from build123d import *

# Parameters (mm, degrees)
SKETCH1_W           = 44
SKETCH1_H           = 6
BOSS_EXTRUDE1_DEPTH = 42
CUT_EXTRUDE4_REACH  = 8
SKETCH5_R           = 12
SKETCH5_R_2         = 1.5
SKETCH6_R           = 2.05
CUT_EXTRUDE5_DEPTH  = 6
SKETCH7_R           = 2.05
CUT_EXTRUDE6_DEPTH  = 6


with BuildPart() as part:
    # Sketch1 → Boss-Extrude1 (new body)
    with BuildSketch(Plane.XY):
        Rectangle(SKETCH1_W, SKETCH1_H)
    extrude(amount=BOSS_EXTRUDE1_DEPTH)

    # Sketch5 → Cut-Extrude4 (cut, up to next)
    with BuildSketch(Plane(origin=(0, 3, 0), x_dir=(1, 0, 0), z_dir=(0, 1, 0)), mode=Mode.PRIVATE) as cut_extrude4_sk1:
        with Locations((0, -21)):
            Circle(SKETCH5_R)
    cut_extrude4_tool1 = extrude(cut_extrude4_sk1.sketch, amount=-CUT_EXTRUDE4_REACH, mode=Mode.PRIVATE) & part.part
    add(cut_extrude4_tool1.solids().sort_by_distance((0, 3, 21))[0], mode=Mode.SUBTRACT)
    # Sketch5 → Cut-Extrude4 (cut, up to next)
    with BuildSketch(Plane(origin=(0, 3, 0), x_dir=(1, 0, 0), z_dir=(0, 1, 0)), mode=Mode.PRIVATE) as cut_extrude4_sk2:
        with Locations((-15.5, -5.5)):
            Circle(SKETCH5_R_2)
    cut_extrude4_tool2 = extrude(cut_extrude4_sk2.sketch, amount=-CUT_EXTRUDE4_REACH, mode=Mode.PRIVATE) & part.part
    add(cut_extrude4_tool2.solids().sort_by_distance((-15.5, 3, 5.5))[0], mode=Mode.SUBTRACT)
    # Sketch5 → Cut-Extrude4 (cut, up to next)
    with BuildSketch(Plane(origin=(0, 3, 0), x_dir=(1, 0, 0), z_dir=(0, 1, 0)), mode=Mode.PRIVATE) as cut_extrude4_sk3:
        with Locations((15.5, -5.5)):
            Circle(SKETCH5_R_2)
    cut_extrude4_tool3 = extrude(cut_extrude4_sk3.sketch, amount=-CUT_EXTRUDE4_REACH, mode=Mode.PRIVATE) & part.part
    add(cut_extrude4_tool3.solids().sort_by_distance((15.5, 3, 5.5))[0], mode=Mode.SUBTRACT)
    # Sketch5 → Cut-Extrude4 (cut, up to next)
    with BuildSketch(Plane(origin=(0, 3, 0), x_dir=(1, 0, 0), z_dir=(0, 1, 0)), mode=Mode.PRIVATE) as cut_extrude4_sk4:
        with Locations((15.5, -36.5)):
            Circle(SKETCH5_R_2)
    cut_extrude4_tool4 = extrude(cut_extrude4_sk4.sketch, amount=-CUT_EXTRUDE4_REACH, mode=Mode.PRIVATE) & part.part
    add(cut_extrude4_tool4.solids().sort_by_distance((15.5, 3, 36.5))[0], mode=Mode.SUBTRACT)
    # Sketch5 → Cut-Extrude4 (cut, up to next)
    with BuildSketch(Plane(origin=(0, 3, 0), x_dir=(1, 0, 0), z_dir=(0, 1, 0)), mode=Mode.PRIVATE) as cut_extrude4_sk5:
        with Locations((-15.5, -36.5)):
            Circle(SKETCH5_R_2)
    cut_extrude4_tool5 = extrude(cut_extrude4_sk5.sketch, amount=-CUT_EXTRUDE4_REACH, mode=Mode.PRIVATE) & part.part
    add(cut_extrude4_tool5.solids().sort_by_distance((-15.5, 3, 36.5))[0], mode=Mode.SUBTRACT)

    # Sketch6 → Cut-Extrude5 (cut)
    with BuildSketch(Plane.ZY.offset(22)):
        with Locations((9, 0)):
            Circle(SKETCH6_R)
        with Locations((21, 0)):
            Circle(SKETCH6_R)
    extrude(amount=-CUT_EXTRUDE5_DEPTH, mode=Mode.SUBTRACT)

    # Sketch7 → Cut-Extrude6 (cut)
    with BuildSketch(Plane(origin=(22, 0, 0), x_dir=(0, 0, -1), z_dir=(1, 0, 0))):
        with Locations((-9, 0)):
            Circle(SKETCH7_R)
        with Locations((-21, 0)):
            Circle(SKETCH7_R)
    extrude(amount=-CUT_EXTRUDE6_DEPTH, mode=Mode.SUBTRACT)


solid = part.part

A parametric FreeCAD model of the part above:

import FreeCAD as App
import Part
import Sketcher
from FreeCAD import Vector

doc = App.newDocument("Part")
params = doc.addObject("Spreadsheet::Sheet", "Params")
for row, (alias, value) in enumerate([
    ("sketch1_width", "44 mm"),
    ("sketch1_height", "6 mm"),
    ("pad1_length", "42 mm"),
    ("sketch2_diameter", "24 mm"),
    ("sketch3_diameter", "3 mm"),
    ("sketch4_diameter", "3 mm"),
    ("sketch5_diameter", "3 mm"),
    ("sketch6_diameter", "3 mm"),
    ("sketch7_diameter", "4.1 mm"),
    ("pocket6_length", "6 mm"),
    ("sketch8_diameter", "4.1 mm"),
    ("pocket7_length", "6 mm"),
], start=1):
    params.set(f"A{row}", alias)
    params.set(f"B{row}", "=" + value)
    params.setAlias(f"B{row}", alias)

body = doc.addObject("PartDesign::Body", "Body")

# Sketch on XY plane
sketch1 = body.newObject("Sketcher::SketchObject", "Sketch")
sketch1.AttachmentSupport = (doc.getObject("XY_Plane"), [""])
sketch1.MapMode = "FlatFace"
sketch1.addGeometry([
    Part.LineSegment(Vector(-22, 3, 0), Vector(-22, -3, 0)),
    Part.LineSegment(Vector(-22, -3, 0), Vector(22, -3, 0)),
    Part.LineSegment(Vector(22, -3, 0), Vector(22, 3, 0)),
    Part.LineSegment(Vector(22, 3, 0), Vector(-22, 3, 0)),
], False)
sketch1.addConstraint([
    Sketcher.Constraint("Coincident", 0, 2, 1, 1),
    Sketcher.Constraint("Coincident", 1, 2, 2, 1),
    Sketcher.Constraint("Coincident", 2, 2, 3, 1),
    Sketcher.Constraint("Coincident", 3, 2, 0, 1),
    Sketcher.Constraint("Vertical", 0),
    Sketcher.Constraint("Horizontal", 1),
    Sketcher.Constraint("Vertical", 2),
    Sketcher.Constraint("Horizontal", 3),
    Sketcher.Constraint("Symmetric", 0, 2, 2, 2, -1, 1),
    Sketcher.Constraint("DistanceX", 1, 1, 1, 2, 44.0),
    Sketcher.Constraint("DistanceY", 0, 2, 0, 1, 6.0),
])
sketch1.setExpression("Constraints[9]", "Params.sketch1_width")
sketch1.setExpression("Constraints[10]", "Params.sketch1_height")
pad1 = body.newObject("PartDesign::Pad", "Pad")
pad1.Profile = sketch1
pad1.setExpression("Length", "Params.pad1_length")

# Sketch on XZ plane
sketch2 = body.newObject("Sketcher::SketchObject", "Sketch001")
sketch2.AttachmentSupport = (doc.getObject("XZ_Plane"), [""])
sketch2.MapMode = "FlatFace"
sketch2.AttachmentOffset = App.Placement(Vector(0, 0, -3), App.Rotation())
sketch2.addGeometry(Part.Circle(Vector(0, 21, 0), Vector(0, 0, 1), 12), False)
sketch2.addConstraint([
    Sketcher.Constraint("PointOnObject", 0, 3, -2),
    Sketcher.Constraint("Diameter", 0, 24.0),
    Sketcher.Constraint("DistanceY", -1, 1, 0, 3, 21.0),
])
sketch2.setExpression("Constraints[1]", "Params.sketch2_diameter")
pocket1 = body.newObject("PartDesign::Pocket", "Pocket")
pocket1.Profile = sketch2
pocket1.Type = "UpToFirst"
pocket1.Reversed = True

# Sketch on XZ plane
sketch3 = body.newObject("Sketcher::SketchObject", "Sketch002")
sketch3.AttachmentSupport = (doc.getObject("XZ_Plane"), [""])
sketch3.MapMode = "FlatFace"
sketch3.AttachmentOffset = App.Placement(Vector(0, 0, -3), App.Rotation())
sketch3.addGeometry(Part.Circle(Vector(-15.5, 5.5, 0), Vector(0, 0, 1), 1.5), False)
sketch3.addConstraint([
    Sketcher.Constraint("Diameter", 0, 3.0),
    Sketcher.Constraint("DistanceX", 0, 3, -1, 1, 15.5),
    Sketcher.Constraint("DistanceY", -1, 1, 0, 3, 5.5),
])
sketch3.setExpression("Constraints[0]", "Params.sketch3_diameter")
pocket2 = body.newObject("PartDesign::Pocket", "Pocket001")
pocket2.Profile = sketch3
pocket2.Type = "UpToFirst"
pocket2.Reversed = True

# Sketch on XZ plane
sketch4 = body.newObject("Sketcher::SketchObject", "Sketch003")
sketch4.AttachmentSupport = (doc.getObject("XZ_Plane"), [""])
sketch4.MapMode = "FlatFace"
sketch4.AttachmentOffset = App.Placement(Vector(0, 0, -3), App.Rotation())
sketch4.addGeometry(Part.Circle(Vector(15.5, 5.5, 0), Vector(0, 0, 1), 1.5), False)
sketch4.addConstraint([
    Sketcher.Constraint("Diameter", 0, 3.0),
    Sketcher.Constraint("DistanceX", -1, 1, 0, 3, 15.5),
    Sketcher.Constraint("DistanceY", -1, 1, 0, 3, 5.5),
])
sketch4.setExpression("Constraints[0]", "Params.sketch4_diameter")
pocket3 = body.newObject("PartDesign::Pocket", "Pocket002")
pocket3.Profile = sketch4
pocket3.Type = "UpToFirst"
pocket3.Reversed = True

# Sketch on XZ plane
sketch5 = body.newObject("Sketcher::SketchObject", "Sketch004")
sketch5.AttachmentSupport = (doc.getObject("XZ_Plane"), [""])
sketch5.MapMode = "FlatFace"
sketch5.AttachmentOffset = App.Placement(Vector(0, 0, -3), App.Rotation())
sketch5.addGeometry(Part.Circle(Vector(15.5, 36.5, 0), Vector(0, 0, 1), 1.5), False)
sketch5.addConstraint([
    Sketcher.Constraint("Diameter", 0, 3.0),
    Sketcher.Constraint("DistanceX", -1, 1, 0, 3, 15.5),
    Sketcher.Constraint("DistanceY", -1, 1, 0, 3, 36.5),
])
sketch5.setExpression("Constraints[0]", "Params.sketch5_diameter")
pocket4 = body.newObject("PartDesign::Pocket", "Pocket003")
pocket4.Profile = sketch5
pocket4.Type = "UpToFirst"
pocket4.Reversed = True

# Sketch on XZ plane
sketch6 = body.newObject("Sketcher::SketchObject", "Sketch005")
sketch6.AttachmentSupport = (doc.getObject("XZ_Plane"), [""])
sketch6.MapMode = "FlatFace"
sketch6.AttachmentOffset = App.Placement(Vector(0, 0, -3), App.Rotation())
sketch6.addGeometry(Part.Circle(Vector(-15.5, 36.5, 0), Vector(0, 0, 1), 1.5), False)
sketch6.addConstraint([
    Sketcher.Constraint("Diameter", 0, 3.0),
    Sketcher.Constraint("DistanceX", 0, 3, -1, 1, 15.5),
    Sketcher.Constraint("DistanceY", -1, 1, 0, 3, 36.5),
])
sketch6.setExpression("Constraints[0]", "Params.sketch6_diameter")
pocket5 = body.newObject("PartDesign::Pocket", "Pocket004")
pocket5.Profile = sketch6
pocket5.Type = "UpToFirst"
pocket5.Reversed = True

# Sketch on YZ plane
sketch7 = body.newObject("Sketcher::SketchObject", "Sketch006")
sketch7.AttachmentSupport = (doc.getObject("YZ_Plane"), [""])
sketch7.MapMode = "FlatFace"
sketch7.AttachmentOffset = App.Placement(Vector(0, 0, -22), App.Rotation())
sketch7.addGeometry([
    Part.Circle(Vector(0, 9, 0), Vector(0, 0, 1), 2.05),
    Part.Circle(Vector(0, 21, 0), Vector(0, 0, 1), 2.05),
], False)
sketch7.addConstraint([
    Sketcher.Constraint("Equal", 0, 1),
    Sketcher.Constraint("PointOnObject", 0, 3, -2),
    Sketcher.Constraint("PointOnObject", 1, 3, -2),
    Sketcher.Constraint("Diameter", 0, 4.1),
    Sketcher.Constraint("DistanceY", -1, 1, 0, 3, 9.0),
    Sketcher.Constraint("DistanceY", -1, 1, 1, 3, 21.0),
])
sketch7.setExpression("Constraints[3]", "Params.sketch7_diameter")
pocket6 = body.newObject("PartDesign::Pocket", "Pocket005")
pocket6.Profile = sketch7
pocket6.setExpression("Length", "Params.pocket6_length")
pocket6.Reversed = True

# Sketch on YZ plane
sketch8 = body.newObject("Sketcher::SketchObject", "Sketch007")
sketch8.AttachmentSupport = (doc.getObject("YZ_Plane"), [""])
sketch8.MapMode = "FlatFace"
sketch8.AttachmentOffset = App.Placement(Vector(0, 0, 22), App.Rotation())
sketch8.addGeometry([
    Part.Circle(Vector(0, 9, 0), Vector(0, 0, 1), 2.05),
    Part.Circle(Vector(0, 21, 0), Vector(0, 0, 1), 2.05),
], False)
sketch8.addConstraint([
    Sketcher.Constraint("Equal", 0, 1),
    Sketcher.Constraint("PointOnObject", 0, 3, -2),
    Sketcher.Constraint("PointOnObject", 1, 3, -2),
    Sketcher.Constraint("Diameter", 0, 4.1),
    Sketcher.Constraint("DistanceY", -1, 1, 0, 3, 9.0),
    Sketcher.Constraint("DistanceY", -1, 1, 1, 3, 21.0),
])
sketch8.setExpression("Constraints[3]", "Params.sketch8_diameter")
pocket7 = body.newObject("PartDesign::Pocket", "Pocket006")
pocket7.Profile = sketch8
pocket7.setExpression("Length", "Params.pocket7_length")

doc.recompute()
